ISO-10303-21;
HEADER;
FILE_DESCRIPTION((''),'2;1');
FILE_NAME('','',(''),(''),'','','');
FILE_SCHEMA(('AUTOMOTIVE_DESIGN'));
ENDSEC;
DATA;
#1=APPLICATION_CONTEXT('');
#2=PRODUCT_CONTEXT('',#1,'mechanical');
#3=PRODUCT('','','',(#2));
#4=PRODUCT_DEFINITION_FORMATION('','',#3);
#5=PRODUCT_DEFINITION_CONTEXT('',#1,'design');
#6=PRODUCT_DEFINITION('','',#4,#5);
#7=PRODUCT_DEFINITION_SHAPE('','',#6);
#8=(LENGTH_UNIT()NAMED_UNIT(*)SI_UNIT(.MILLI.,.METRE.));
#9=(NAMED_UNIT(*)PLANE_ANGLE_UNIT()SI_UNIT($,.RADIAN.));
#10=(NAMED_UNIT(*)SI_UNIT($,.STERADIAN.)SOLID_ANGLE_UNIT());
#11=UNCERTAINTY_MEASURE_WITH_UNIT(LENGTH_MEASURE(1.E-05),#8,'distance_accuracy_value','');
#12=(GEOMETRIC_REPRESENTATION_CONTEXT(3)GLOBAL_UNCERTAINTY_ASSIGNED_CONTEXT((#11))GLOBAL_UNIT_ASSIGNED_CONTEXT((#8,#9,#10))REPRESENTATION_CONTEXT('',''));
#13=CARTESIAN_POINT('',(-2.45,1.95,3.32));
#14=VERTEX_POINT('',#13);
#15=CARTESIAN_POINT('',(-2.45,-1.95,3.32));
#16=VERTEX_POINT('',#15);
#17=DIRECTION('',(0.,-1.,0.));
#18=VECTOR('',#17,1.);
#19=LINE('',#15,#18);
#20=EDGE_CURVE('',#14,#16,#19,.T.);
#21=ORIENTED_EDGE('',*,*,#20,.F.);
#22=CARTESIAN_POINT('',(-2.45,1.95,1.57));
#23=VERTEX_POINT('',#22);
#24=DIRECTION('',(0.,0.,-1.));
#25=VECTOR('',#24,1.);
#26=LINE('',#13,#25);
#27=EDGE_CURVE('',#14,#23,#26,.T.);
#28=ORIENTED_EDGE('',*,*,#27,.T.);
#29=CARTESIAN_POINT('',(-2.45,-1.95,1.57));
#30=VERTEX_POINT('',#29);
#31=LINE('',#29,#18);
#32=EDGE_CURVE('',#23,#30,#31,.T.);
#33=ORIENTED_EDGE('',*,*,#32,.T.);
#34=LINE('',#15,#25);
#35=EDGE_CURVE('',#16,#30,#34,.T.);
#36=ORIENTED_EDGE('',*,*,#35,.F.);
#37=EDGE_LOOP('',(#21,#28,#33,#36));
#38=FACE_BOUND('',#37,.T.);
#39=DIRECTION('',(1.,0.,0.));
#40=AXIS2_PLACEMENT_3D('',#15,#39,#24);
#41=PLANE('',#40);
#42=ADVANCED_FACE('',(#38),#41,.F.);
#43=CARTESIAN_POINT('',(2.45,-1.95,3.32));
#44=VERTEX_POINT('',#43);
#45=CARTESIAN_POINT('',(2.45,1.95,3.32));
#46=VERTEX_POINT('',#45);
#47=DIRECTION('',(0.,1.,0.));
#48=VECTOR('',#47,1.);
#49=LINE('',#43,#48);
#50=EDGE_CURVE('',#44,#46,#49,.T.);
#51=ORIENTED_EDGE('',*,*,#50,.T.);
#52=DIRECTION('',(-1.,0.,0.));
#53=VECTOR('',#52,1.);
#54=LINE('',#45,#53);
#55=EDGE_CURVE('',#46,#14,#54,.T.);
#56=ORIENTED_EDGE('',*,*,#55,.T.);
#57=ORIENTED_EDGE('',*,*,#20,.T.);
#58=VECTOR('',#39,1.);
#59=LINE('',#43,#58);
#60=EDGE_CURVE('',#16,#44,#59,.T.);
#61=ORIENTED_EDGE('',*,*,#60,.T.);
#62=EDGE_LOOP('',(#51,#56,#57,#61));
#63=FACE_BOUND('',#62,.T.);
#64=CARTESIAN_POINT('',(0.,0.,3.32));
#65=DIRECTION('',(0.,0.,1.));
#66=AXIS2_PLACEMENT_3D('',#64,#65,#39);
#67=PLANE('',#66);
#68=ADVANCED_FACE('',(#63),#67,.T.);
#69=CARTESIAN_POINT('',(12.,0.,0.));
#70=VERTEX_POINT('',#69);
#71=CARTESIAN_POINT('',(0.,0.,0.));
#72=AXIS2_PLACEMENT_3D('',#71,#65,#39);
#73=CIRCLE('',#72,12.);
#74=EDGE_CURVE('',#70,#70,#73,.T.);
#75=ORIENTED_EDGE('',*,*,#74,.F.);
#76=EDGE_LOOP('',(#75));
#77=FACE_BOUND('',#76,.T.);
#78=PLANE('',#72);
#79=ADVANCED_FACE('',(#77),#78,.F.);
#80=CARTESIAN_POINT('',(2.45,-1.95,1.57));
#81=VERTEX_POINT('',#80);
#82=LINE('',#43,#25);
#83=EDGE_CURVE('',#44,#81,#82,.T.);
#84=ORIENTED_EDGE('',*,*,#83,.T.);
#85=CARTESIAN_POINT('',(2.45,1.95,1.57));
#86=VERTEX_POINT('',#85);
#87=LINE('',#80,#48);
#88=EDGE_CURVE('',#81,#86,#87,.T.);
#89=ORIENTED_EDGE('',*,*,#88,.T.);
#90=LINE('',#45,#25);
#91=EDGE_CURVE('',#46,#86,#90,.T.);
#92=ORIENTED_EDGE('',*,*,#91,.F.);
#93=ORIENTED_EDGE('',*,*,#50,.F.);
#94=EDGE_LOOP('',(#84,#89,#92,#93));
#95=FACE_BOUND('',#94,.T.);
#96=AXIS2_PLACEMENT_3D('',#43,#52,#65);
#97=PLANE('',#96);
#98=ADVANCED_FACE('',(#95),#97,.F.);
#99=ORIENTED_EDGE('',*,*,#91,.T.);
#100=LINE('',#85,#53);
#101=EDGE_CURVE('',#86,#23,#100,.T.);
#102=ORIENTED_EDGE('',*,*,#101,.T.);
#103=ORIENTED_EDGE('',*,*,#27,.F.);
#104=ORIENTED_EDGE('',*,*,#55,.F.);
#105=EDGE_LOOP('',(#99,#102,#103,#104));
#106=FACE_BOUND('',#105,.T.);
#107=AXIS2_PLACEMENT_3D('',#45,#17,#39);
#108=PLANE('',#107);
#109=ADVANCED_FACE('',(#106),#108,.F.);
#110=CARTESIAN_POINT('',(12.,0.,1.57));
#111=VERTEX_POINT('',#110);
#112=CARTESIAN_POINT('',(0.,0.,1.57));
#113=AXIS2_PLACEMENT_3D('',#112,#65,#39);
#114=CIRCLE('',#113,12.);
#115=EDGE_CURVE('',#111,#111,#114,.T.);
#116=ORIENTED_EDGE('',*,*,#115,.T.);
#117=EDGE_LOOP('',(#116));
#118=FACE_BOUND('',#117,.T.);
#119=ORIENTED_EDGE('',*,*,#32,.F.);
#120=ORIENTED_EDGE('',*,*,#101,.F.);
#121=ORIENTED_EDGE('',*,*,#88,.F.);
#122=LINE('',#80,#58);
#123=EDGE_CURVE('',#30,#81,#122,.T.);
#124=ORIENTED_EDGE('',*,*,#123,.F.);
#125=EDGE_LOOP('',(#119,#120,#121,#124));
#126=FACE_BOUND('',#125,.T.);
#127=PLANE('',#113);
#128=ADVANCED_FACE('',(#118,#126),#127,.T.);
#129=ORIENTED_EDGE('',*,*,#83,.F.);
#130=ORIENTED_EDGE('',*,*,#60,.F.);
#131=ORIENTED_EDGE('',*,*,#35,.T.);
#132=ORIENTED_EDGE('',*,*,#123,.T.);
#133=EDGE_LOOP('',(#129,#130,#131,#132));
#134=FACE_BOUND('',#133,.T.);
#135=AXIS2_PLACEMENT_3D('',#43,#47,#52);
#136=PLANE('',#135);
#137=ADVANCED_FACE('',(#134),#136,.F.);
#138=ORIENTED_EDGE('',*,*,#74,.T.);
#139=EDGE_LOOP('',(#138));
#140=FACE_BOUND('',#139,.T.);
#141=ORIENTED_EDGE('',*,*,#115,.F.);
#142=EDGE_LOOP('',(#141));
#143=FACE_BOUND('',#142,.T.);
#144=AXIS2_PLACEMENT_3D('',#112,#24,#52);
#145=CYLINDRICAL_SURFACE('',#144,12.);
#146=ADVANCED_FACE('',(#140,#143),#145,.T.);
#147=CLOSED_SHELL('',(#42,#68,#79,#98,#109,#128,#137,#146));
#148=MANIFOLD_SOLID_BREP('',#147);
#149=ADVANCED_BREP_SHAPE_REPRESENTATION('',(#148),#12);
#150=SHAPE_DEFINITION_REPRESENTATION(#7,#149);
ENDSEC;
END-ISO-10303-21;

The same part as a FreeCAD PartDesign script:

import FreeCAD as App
import Part
import Sketcher
from FreeCAD import Vector

doc = App.newDocument("Part")
params = doc.addObject("Spreadsheet::Sheet", "Params")
for row, (alias, value) in enumerate([
    ("sketch1_diameter", "24 mm"),
    ("pad1_length", "1.57 mm"),
    ("sketch2_width", "4.9 mm"),
    ("sketch2_height", "3.9 mm"),
    ("pad2_length", "1.75 mm"),
], start=1):
    params.set(f"A{row}", alias)
    params.set(f"B{row}", "=" + value)
    params.setAlias(f"B{row}", alias)

body = doc.addObject("PartDesign::Body", "Body")

sketch1 = body.newObject("Sketcher::SketchObject", "Sketch")
sketch1.AttachmentSupport = (doc.getObject("XY_Plane"), [""])
sketch1.MapMode = "FlatFace"
sketch1.addGeometry(Part.Circle(Vector(0, 0, 0), Vector(0, 0, 1), 12), False)
sketch1.addConstraint(Sketcher.Constraint("Coincident", 0, 3, -1, 1))
sketch1.addConstraint(Sketcher.Constraint("Diameter", 0, 24.0))
sketch1.setExpression("Constraints[1]", "Params.sketch1_diameter")
pad1 = body.newObject("PartDesign::Pad", "Pad")
pad1.Profile = sketch1
pad1.setExpression("Length", "Params.pad1_length")

sketch2 = body.newObject("Sketcher::SketchObject", "Sketch001")
sketch2.AttachmentSupport = (doc.getObject("XY_Plane"), [""])
sketch2.MapMode = "FlatFace"
sketch2.AttachmentOffset = App.Placement(Vector(0, 0, 1.57), App.Rotation())
sketch2.addGeometry(Part.LineSegment(Vector(-2.5, 1.9, 0), Vector(-2.5, -1.9, 0)), False)
sketch2.addGeometry(Part.LineSegment(Vector(-2.5, -1.9, 0), Vector(2.5, -1.9, 0)), False)
sketch2.addGeometry(Part.LineSegment(Vector(2.5, -1.9, 0), Vector(2.5, 1.9, 0)), False)
sketch2.addGeometry(Part.LineSegment(Vector(2.5, 1.9, 0), Vector(-2.5, 1.9, 0)), False)
sketch2.addConstraint(Sketcher.Constraint("Coincident", 0, 2, 1, 1))
sketch2.addConstraint(Sketcher.Constraint("Coincident", 1, 2, 2, 1))
sketch2.addConstraint(Sketcher.Constraint("Coincident", 2, 2, 3, 1))
sketch2.addConstraint(Sketcher.Constraint("Coincident", 3, 2, 0, 1))
sketch2.addConstraint(Sketcher.Constraint("Vertical", 0))
sketch2.addConstraint(Sketcher.Constraint("Horizontal", 1))
sketch2.addConstraint(Sketcher.Constraint("Vertical", 2))
sketch2.addConstraint(Sketcher.Constraint("Horizontal", 3))
sketch2.addConstraint(Sketcher.Constraint("Symmetric", 0, 2, 2, 2, -1, 1))
sketch2.addConstraint(Sketcher.Constraint("DistanceX", 1, 1, 1, 2, 4.9))
sketch2.addConstraint(Sketcher.Constraint("DistanceY", 0, 2, 0, 1, 3.9))
sketch2.setExpression("Constraints[9]", "Params.sketch2_width")
sketch2.setExpression("Constraints[10]", "Params.sketch2_height")
pad2 = body.newObject("PartDesign::Pad", "Pad001")
pad2.Profile = sketch2
pad2.setExpression("Length", "Params.pad2_length")

doc.recompute()
